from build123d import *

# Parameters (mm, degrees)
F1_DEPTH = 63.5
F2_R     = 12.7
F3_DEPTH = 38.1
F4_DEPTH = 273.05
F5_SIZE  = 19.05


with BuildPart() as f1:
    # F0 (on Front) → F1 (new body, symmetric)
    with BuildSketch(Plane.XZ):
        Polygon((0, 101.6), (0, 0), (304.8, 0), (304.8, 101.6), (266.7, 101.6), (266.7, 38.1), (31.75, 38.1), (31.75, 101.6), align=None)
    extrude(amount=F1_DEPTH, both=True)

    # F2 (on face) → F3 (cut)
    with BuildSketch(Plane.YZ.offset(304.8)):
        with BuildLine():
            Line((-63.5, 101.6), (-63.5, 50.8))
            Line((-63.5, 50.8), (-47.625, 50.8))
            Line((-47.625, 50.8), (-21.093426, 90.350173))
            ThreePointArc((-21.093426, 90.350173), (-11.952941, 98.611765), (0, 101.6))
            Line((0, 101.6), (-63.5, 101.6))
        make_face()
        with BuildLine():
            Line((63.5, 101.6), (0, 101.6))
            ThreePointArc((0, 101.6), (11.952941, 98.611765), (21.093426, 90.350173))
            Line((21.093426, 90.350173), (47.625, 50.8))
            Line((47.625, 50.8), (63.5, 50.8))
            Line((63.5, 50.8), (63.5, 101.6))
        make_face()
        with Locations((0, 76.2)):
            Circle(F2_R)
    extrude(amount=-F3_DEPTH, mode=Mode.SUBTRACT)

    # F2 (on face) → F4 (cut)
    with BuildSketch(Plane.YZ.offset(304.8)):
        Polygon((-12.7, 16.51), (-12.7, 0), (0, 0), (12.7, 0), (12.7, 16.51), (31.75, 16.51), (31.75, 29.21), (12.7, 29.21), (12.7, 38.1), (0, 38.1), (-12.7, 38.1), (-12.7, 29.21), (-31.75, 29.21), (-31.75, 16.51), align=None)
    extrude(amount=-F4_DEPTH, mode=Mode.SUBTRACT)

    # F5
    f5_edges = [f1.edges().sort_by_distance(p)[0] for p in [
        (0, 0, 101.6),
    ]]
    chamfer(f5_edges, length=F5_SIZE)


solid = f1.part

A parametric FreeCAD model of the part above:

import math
import FreeCAD as App
import Part
import Sketcher
from FreeCAD import Vector
Q = App.Units.Quantity


def edges_at(feature, points):
    """Names of the edges that pass closest to the given points."""
    edges = feature.Shape.Edges
    near = lambda p: min(range(len(edges)), key=lambda i: edges[i].distToShape(Part.Vertex(*p))[0])
    return sorted({f"Edge{near(p) + 1}" for p in points})

doc = App.newDocument("Part")
body = doc.addObject("PartDesign::Body", "Body")

sketch1 = body.newObject("Sketcher::SketchObject", "Sketch")
sketch1.AttachmentSupport = (doc.getObject("XZ_Plane"), [""])
sketch1.MapMode = "FlatFace"
sketch1.addGeometry(Part.LineSegment(Vector(0, 102, 0), Vector(0, 0, 0)), False)
sketch1.addGeometry(Part.LineSegment(Vector(0, 0, 0), Vector(305, 0, 0)), False)
sketch1.addGeometry(Part.LineSegment(Vector(305, 0, 0), Vector(305, 102, 0)), False)
sketch1.addGeometry(Part.LineSegment(Vector(305, 102, 0), Vector(267, 102, 0)), False)
sketch1.addGeometry(Part.LineSegment(Vector(267, 102, 0), Vector(267, 38, 0)), False)
sketch1.addGeometry(Part.LineSegment(Vector(267, 38, 0), Vector(32, 38, 0)), False)
sketch1.addGeometry(Part.LineSegment(Vector(32, 38, 0), Vector(32, 102, 0)), False)
sketch1.addGeometry(Part.LineSegment(Vector(32, 102, 0), Vector(0, 102, 0)), False)
sketch1.addConstraint(Sketcher.Constraint("Coincident", 0, 2, 1, 1))
sketch1.addConstraint(Sketcher.Constraint("Coincident", 1, 2, 2, 1))
sketch1.addConstraint(Sketcher.Constraint("Coincident", 2, 2, 3, 1))
sketch1.addConstraint(Sketcher.Constraint("Coincident", 3, 2, 4, 1))
sketch1.addConstraint(Sketcher.Constraint("Coincident", 4, 2, 5, 1))
sketch1.addConstraint(Sketcher.Constraint("Coincident", 5, 2, 6, 1))
sketch1.addConstraint(Sketcher.Constraint("Coincident", 6, 2, 7, 1))
sketch1.addConstraint(Sketcher.Constraint("Coincident", 7, 2, 0, 1))
sketch1.addConstraint(Sketcher.Constraint("Vertical", 0))
sketch1.addConstraint(Sketcher.Constraint("Horizontal", 1))
sketch1.addConstraint(Sketcher.Constraint("Vertical", 2))
sketch1.addConstraint(Sketcher.Constraint("Horizontal", 3))
sketch1.addConstraint(Sketcher.Constraint("Vertical", 4))
sketch1.addConstraint(Sketcher.Constraint("Horizontal", 5))
sketch1.addConstraint(Sketcher.Constraint("Vertical", 6))
sketch1.addConstraint(Sketcher.Constraint("Horizontal", 7))
sketch1.addConstraint(Sketcher.Constraint("Coincident", 0, 2, -1, 1))
sketch1.addConstraint(Sketcher.Constraint("Horizontal", 3, 2, 6, 2))
sketch1.addConstraint(Sketcher.Constraint("DistanceX", 1, 1, 1, 2, Q("12 in")))
sketch1.addConstraint(Sketcher.Constraint("DistanceY", 0, 2, 0, 1, Q("4 in")))
sketch1.addConstraint(Sketcher.Constraint("DistanceX", 3, 2, 3, 1, Q("1.5 in")))
sketch1.addConstraint(Sketcher.Constraint("DistanceY", 4, 2, 4, 1, Q("2.5 in")))
sketch1.addConstraint(Sketcher.Constraint("DistanceX", 5, 2, 5, 1, Q("9.25 in")))
pad1 = body.newObject("PartDesign::Pad", "Pad")
pad1.Profile = sketch1
pad1.Length = Q("5 in")
pad1.Midplane = True

sketch2 = body.newObject("Sketcher::SketchObject", "Sketch001")
sketch2.AttachmentSupport = (doc.getObject("YZ_Plane"), [""])
sketch2.MapMode = "FlatFace"
sketch2.AttachmentOffset = App.Placement(Vector(0, 0, 12 * 25.4), App.Rotation())
sketch2.addGeometry(Part.LineSegment(Vector(-64, 102, 0), Vector(-64, 51, 0)), False)
sketch2.addGeometry(Part.LineSegment(Vector(-64, 51, 0), Vector(-48, 51, 0)), False)
sketch2.addGeometry(Part.LineSegment(Vector(-48, 51, 0), Vector(-21, 90, 0)), False)
sketch2.addGeometry(Part.ArcOfCircle(Part.Circle(Vector(0, 76, 0), Vector(0, 0, 1), 25), math.radians(90), math.radians(146)), False)
sketch2.addGeometry(Part.LineSegment(Vector(0, 102, 0), Vector(-64, 102, 0)), False)
sketch2.addGeometry(Part.LineSegment(Vector(64, 102, 0), Vector(0, 102, 0)), False)
sketch2.addGeometry(Part.ArcOfCircle(Part.Circle(Vector(0, 76, 0), Vector(0, 0, 1), 25), math.radians(34), math.radians(90)), False)
sketch2.addGeometry(Part.LineSegment(Vector(21, 90, 0), Vector(48, 51, 0)), False)
sketch2.addGeometry(Part.LineSegment(Vector(48, 51, 0), Vector(64, 51, 0)), False)
sketch2.addGeometry(Part.LineSegment(Vector(64, 51, 0), Vector(64, 102, 0)), False)
sketch2.addGeometry(Part.Circle(Vector(0, 76, 0), Vector(0, 0, 1), 13), False)
sketch2.addConstraint(Sketcher.Constraint("Coincident", 0, 2, 1, 1))
sketch2.addConstraint(Sketcher.Constraint("Coincident", 1, 2, 2, 1))
sketch2.addConstraint(Sketcher.Constraint("Tangent", 2, 2, 3, 2))
sketch2.addConstraint(Sketcher.Constraint("Tangent", 3, 1, 4, 1))
sketch2.addConstraint(Sketcher.Constraint("Coincident", 4, 2, 0, 1))
sketch2.addConstraint(Sketcher.Constraint("Tangent", 5, 2, 6, 2))
sketch2.addConstraint(Sketcher.Constraint("Tangent", 6, 1, 7, 1))
sketch2.addConstraint(Sketcher.Constraint("Coincident", 7, 2, 8, 1))
sketch2.addConstraint(Sketcher.Constraint("Coincident", 8, 2, 9, 1))
sketch2.addConstraint(Sketcher.Constraint("Coincident", 9, 2, 5, 1))
sketch2.addConstraint(Sketcher.Constraint("Vertical", 0))
sketch2.addConstraint(Sketcher.Constraint("Horizontal", 1))
sketch2.addConstraint(Sketcher.Constraint("Horizontal", 4))
sketch2.addConstraint(Sketcher.Constraint("Horizontal", 5))
sketch2.addConstraint(Sketcher.Constraint("Horizontal", 8))
sketch2.addConstraint(Sketcher.Constraint("Vertical", 9))
sketch2.addConstraint(Sketcher.Constraint("Coincident", 6, 3, 3, 3))
sketch2.addConstraint(Sketcher.Constraint("Coincident", 10, 3, 3, 3))
sketch2.addConstraint(Sketcher.Constraint("Equal", 3, 6))
sketch2.addConstraint(Sketcher.Constraint("Symmetric", 2, 2, 6, 1, -2))
sketch2.addConstraint(Sketcher.Constraint("Symmetric", 0, 2, 8, 2, -2))
sketch2.addConstraint(Sketcher.Constraint("Diameter", 10, Q("1 in")))
sketch2.addConstraint(Sketcher.Constraint("Radius", 3, Q("1 in")))
sketch2.addConstraint(Sketcher.Constraint("DistanceY", 0, 2, 0, 1, Q("2 in")))
sketch2.addConstraint(Sketcher.Constraint("DistanceX", 4, 2, 4, 1, Q("2.5 in")))
sketch2.addConstraint(Sketcher.Constraint("DistanceY", -1, 1, 3, 3, Q("3 in")))
sketch2.addConstraint(Sketcher.Constraint("DistanceX", 1, 1, 1, 2, Q("0.625 in")))
pocket1 = body.newObject("PartDesign::Pocket", "Pocket")
pocket1.Profile = sketch2
pocket1.Length = Q("1.5 in")

sketch3 = body.newObject("Sketcher::SketchObject", "Sketch002")
sketch3.AttachmentSupport = (doc.getObject("YZ_Plane"), [""])
sketch3.MapMode = "FlatFace"
sketch3.AttachmentOffset = App.Placement(Vector(0, 0, 12 * 25.4), App.Rotation())
sketch3.addGeometry(Part.LineSegment(Vector(-13, 17, 0), Vector(-13, 0, 0)), False)
sketch3.addGeometry(Part.LineSegment(Vector(-13, 0, 0), Vector(13, 0, 0)), False)
sketch3.addGeometry(Part.LineSegment(Vector(13, 0, 0), Vector(13, 17, 0)), False)
sketch3.addGeometry(Part.LineSegment(Vector(13, 17, 0), Vector(32, 17, 0)), False)
sketch3.addGeometry(Part.LineSegment(Vector(32, 17, 0), Vector(32, 29, 0)), False)
sketch3.addGeometry(Part.LineSegment(Vector(32, 29, 0), Vector(13, 29, 0)), False)
sketch3.addGeometry(Part.LineSegment(Vector(13, 29, 0), Vector(13, 38, 0)), False)
sketch3.addGeometry(Part.LineSegment(Vector(13, 38, 0), Vector(-13, 38, 0)), False)
sketch3.addGeometry(Part.LineSegment(Vector(-13, 38, 0), Vector(-13, 29, 0)), False)
sketch3.addGeometry(Part.LineSegment(Vector(-13, 29, 0), Vector(-32, 29, 0)), False)
sketch3.addGeometry(Part.LineSegment(Vector(-32, 29, 0), Vector(-32, 17, 0)), False)
sketch3.addGeometry(Part.LineSegment(Vector(-32, 17, 0), Vector(-13, 17, 0)), False)
sketch3.addConstraint(Sketcher.Constraint("Coincident", 0, 2, 1, 1))
sketch3.addConstraint(Sketcher.Constraint("Coincident", 1, 2, 2, 1))
sketch3.addConstraint(Sketcher.Constraint("Coincident", 2, 2, 3, 1))
sketch3.addConstraint(Sketcher.Constraint("Coincident", 3, 2, 4, 1))
sketch3.addConstraint(Sketcher.Constraint("Coincident", 4, 2, 5, 1))
sketch3.addConstraint(Sketcher.Constraint("Coincident", 5, 2, 6, 1))
sketch3.addConstraint(Sketcher.Constraint("Coincident", 6, 2, 7, 1))
sketch3.addConstraint(Sketcher.Constraint("Coincident", 7, 2, 8, 1))
sketch3.addConstraint(Sketcher.Constraint("Coincident", 8, 2, 9, 1))
sketch3.addConstraint(Sketcher.Constraint("Coincident", 9, 2, 10, 1))
sketch3.addConstraint(Sketcher.Constraint("Coincident", 10, 2, 11, 1))
sketch3.addConstraint(Sketcher.Constraint("Coincident", 11, 2, 0, 1))
sketch3.addConstraint(Sketcher.Constraint("Vertical", 0))
sketch3.addConstraint(Sketcher.Constraint("Horizontal", 1))
sketch3.addConstraint(Sketcher.Constraint("Vertical", 2))
sketch3.addConstraint(Sketcher.Constraint("Horizontal", 3))
sketch3.addConstraint(Sketcher.Constraint("Vertical", 4))
sketch3.addConstraint(Sketcher.Constraint("Horizontal", 5))
sketch3.addConstraint(Sketcher.Constraint("Vertical", 6))
sketch3.addConstraint(Sketcher.Constraint("Horizontal", 7))
sketch3.addConstraint(Sketcher.Constraint("Vertical", 8))
sketch3.addConstraint(Sketcher.Constraint("Horizontal", 9))
sketch3.addConstraint(Sketcher.Constraint("Vertical", 10))
sketch3.addConstraint(Sketcher.Constraint("Horizontal", 11))
sketch3.addConstraint(Sketcher.Constraint("Symmetric", 0, 2, 1, 2, -1, 1))
sketch3.addConstraint(Sketcher.Constraint("Symmetric", 5, 2, 8, 2, -2))
sketch3.addConstraint(Sketcher.Constraint("Symmetric", 3, 2, 10, 2, -2))
sketch3.addConstraint(Sketcher.Constraint("Vertical", 2, 2, 5, 2))
sketch3.addConstraint(Sketcher.Constraint("DistanceX", 1, 1, 1, 2, Q("1 in")))
sketch3.addConstraint(Sketcher.Constraint("DistanceY", 4, 1, 4, 2, Q("0.5 in")))
sketch3.addConstraint(Sketcher.Constraint("DistanceX", 3, 1, 3, 2, Q("0.75 in")))
sketch3.addConstraint(Sketcher.Constraint("DistanceY", 0, 2, 0, 1, Q("0.65 in")))
sketch3.addConstraint(Sketcher.Constraint("DistanceY", 6, 1, 6, 2, Q("0.35 in")))
pocket2 = body.newObject("PartDesign::Pocket", "Pocket001")
pocket2.Profile = sketch3
pocket2.Length = Q("10.75 in")
doc.recompute()

chamfer = body.newObject("PartDesign::Chamfer", "Chamfer")
chamfer.Base = (pocket2, edges_at(pocket2, [(0, 0, 101.6)]))
chamfer.Size = Q("0.75 in")

doc.recompute()
